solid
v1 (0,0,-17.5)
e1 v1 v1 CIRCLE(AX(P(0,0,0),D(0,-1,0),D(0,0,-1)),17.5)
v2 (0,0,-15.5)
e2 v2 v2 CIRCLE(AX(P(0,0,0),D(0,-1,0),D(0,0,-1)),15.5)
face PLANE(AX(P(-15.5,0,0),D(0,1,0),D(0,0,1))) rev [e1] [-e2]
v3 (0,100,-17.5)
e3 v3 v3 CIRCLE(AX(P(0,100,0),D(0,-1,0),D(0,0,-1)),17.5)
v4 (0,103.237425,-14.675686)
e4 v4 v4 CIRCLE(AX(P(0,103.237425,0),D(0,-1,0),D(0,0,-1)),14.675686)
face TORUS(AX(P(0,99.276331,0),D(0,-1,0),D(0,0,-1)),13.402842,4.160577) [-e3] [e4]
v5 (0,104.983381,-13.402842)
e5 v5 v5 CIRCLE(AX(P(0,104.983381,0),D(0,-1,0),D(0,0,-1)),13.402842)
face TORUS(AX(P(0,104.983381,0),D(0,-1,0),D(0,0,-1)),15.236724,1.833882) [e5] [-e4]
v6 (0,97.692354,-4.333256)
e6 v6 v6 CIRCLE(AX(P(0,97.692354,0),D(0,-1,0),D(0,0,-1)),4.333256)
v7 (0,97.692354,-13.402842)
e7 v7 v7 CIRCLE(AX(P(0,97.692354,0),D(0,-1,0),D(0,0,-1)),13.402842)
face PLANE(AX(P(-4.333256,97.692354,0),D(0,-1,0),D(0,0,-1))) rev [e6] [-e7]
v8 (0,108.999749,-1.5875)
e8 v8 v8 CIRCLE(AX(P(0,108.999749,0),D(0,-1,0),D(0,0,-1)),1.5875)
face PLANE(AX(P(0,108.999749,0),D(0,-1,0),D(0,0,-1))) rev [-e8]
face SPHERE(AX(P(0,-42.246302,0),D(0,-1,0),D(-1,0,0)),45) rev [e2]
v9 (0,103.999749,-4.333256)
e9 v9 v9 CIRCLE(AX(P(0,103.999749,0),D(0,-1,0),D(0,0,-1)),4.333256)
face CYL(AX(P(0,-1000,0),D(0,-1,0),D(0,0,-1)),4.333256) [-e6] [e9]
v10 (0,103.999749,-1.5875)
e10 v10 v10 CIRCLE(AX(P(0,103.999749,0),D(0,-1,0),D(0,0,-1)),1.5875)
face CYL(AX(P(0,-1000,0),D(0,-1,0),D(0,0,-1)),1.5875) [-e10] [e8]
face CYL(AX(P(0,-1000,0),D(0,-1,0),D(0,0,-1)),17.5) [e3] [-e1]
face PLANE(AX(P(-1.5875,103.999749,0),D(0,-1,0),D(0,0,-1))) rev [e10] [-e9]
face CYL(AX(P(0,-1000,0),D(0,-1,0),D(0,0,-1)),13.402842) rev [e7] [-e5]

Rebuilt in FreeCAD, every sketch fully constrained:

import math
import FreeCAD as App
import Part
import Sketcher
from FreeCAD import Vector

doc = App.newDocument("Part")
body = doc.addObject("PartDesign::Body", "Body")

# Sketch on XY plane
sketch1 = body.newObject("Sketcher::SketchObject", "Sketch")
sketch1.AttachmentSupport = (doc.getObject("XY_Plane"), [""])
sketch1.MapMode = "FlatFace"
sketch1.addGeometry([
    Part.LineSegment(Vector(-17.5, 0, 0), Vector(-15.5, 0, 0)),  # 0
    Part.ArcOfCircle(Part.Circle(Vector(0, -42.246302, 0), Vector(0, 0, 1), 45), math.radians(90), math.radians(110.147886)),  # 1
    Part.LineSegment(Vector(0, 2.753698, 0), Vector(0, 108.999749, 0)),  # 2
    Part.LineSegment(Vector(0, 108.999749, 0), Vector(-1.5875, 108.999749, 0)),  # 3
    Part.LineSegment(Vector(-1.5875, 108.999749, 0), Vector(-1.5875, 103.999749, 0)),  # 4
    Part.LineSegment(Vector(-1.5875, 103.999749, 0), Vector(-4.333256, 103.999749, 0)),  # 5
    Part.LineSegment(Vector(-4.333256, 103.999749, 0), Vector(-4.333256, 97.692354, 0)),  # 6
    Part.LineSegment(Vector(-4.333256, 97.692354, 0), Vector(-13.402842, 97.692354, 0)),  # 7
    Part.LineSegment(Vector(-13.402842, 97.692354, 0), Vector(-13.402842, 104.983381, 0)),  # 8
    Part.ArcOfCircle(Part.Circle(Vector(-15.236724, 104.983381, 0), Vector(0, 0, 1), 1.833882), math.radians(0), math.radians(287.814097)),  # 9
    Part.ArcOfCircle(Part.Circle(Vector(-13.402842, 99.276331, 0), Vector(0, 0, 1), 4.160577), math.radians(107.814097), math.radians(169.983323)),  # 10
    Part.LineSegment(Vector(-17.5, 100, 0), Vector(-17.5, 0, 0)),  # 11
], False)
sketch1.addConstraint([
    Sketcher.Constraint("Coincident", 0, 2, 1, 2),
    Sketcher.Constraint("Coincident", 1, 1, 2, 1),
    Sketcher.Constraint("Coincident", 2, 2, 3, 1),
    Sketcher.Constraint("Coincident", 3, 2, 4, 1),
    Sketcher.Constraint("Coincident", 4, 2, 5, 1),
    Sketcher.Constraint("Coincident", 5, 2, 6, 1),
    Sketcher.Constraint("Coincident", 6, 2, 7, 1),
    Sketcher.Constraint("Coincident", 7, 2, 8, 1),
    Sketcher.Constraint("Tangent", 8, 2, 9, 1),
    Sketcher.Constraint("Tangent", 9, 2, 10, 1),
    Sketcher.Constraint("Coincident", 10, 2, 11, 1),
    Sketcher.Constraint("Coincident", 11, 2, 0, 1),
    Sketcher.Constraint("Horizontal", 0),
    Sketcher.Constraint("Vertical", 2),
    Sketcher.Constraint("Horizontal", 3),
    Sketcher.Constraint("Vertical", 4),
    Sketcher.Constraint("Horizontal", 5),
    Sketcher.Constraint("Vertical", 6),
    Sketcher.Constraint("Horizontal", 7),
    Sketcher.Constraint("Vertical", 8),
    Sketcher.Constraint("Vertical", 11),
    Sketcher.Constraint("PointOnObject", 1, 3, -2),
    Sketcher.Constraint("PointOnObject", 0, 2, -1),
    Sketcher.Constraint("PointOnObject", 1, 1, -2),
    Sketcher.Constraint("Vertical", 10, 3, 7, 2),
    Sketcher.Constraint("Radius", 1, 45.0),
    Sketcher.Constraint("DistanceX", 0, 1, 0, 2, 2.0),
    Sketcher.Constraint("DistanceY", 4, 2, 4, 1, 5.0),
    Sketcher.Constraint("DistanceY", 11, 2, 11, 1, 100.0),
    Sketcher.Constraint("DistanceX", 0, 2, -1, 1, 15.5),
    Sketcher.Constraint("DistanceX", 3, 2, 3, 1, 1.5875),
    Sketcher.Constraint("Radius", 9, 1.833882),
    Sketcher.Constraint("Radius", 10, 4.160577),
    Sketcher.Constraint("DistanceY", 2, 1, 2, 2, 106.246051),
    Sketcher.Constraint("DistanceX", 5, 2, 5, 1, 2.745756),
    Sketcher.Constraint("DistanceX", 7, 2, 7, 1, 9.069586),
    Sketcher.Constraint("DistanceY", 6, 2, 6, 1, 6.307395),
])
revolution = body.newObject("PartDesign::Revolution", "Revolution")
revolution.Profile = sketch1
revolution.ReferenceAxis = (sketch1, ["V_Axis"])
revolution.Angle = 360

doc.recompute()
